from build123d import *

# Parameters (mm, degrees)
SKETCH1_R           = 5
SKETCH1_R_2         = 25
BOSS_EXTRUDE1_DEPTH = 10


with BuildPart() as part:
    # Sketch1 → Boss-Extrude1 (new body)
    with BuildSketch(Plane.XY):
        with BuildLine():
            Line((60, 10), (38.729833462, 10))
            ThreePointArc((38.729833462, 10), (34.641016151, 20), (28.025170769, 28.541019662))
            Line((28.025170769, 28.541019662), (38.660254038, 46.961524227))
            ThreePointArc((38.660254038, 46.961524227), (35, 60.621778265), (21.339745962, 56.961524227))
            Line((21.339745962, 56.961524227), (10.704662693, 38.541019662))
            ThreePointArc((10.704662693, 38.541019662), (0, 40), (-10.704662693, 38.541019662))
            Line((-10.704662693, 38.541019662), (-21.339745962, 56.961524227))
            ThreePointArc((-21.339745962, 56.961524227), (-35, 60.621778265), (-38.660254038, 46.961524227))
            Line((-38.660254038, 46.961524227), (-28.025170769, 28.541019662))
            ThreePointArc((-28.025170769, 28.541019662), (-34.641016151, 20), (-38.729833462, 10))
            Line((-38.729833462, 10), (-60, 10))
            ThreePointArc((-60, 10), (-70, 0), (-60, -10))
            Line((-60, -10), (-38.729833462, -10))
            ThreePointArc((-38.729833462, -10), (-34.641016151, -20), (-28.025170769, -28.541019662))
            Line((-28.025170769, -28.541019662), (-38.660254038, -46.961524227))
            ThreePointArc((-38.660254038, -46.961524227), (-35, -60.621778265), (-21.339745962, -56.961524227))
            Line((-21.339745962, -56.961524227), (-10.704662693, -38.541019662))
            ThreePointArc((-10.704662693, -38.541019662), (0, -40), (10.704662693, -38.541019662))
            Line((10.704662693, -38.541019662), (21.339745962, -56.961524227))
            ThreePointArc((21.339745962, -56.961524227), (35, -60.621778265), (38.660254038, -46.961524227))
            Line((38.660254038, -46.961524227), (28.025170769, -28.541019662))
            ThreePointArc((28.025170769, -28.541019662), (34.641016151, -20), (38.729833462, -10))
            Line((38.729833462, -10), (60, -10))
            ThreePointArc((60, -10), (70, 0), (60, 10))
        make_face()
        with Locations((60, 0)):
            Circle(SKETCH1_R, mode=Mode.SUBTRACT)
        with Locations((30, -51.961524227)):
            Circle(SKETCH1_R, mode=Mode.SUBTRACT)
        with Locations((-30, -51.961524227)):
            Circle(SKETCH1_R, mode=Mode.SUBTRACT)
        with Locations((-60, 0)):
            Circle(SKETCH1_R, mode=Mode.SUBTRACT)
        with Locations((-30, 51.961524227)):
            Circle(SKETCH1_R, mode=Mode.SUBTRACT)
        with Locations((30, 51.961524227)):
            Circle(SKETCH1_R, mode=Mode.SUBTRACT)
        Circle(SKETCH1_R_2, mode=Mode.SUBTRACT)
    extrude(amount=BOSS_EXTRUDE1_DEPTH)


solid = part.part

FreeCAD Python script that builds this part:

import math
import FreeCAD as App
import Part
import Sketcher
Q = App.Units.Quantity

doc = App.newDocument("Part")
body = doc.addObject("PartDesign::Body", "Body")

sketch1 = body.newObject("Sketcher::SketchObject", "Sketch")
sketch1.AttachmentSupport = (doc.getObject("XY_Plane"), [""])
sketch1.MapMode = "FlatFace"
sketch1.addGeometry(Part.LineSegment(App.Vector(60, 10, 0), App.Vector(39, 10, 0)), False)
sketch1.addGeometry(Part.ArcOfCircle(Part.Circle(App.Vector(0, 0, 0), App.Vector(0, 0, 1), 40), math.radians(14), math.radians(46)), False)
sketch1.addGeometry(Part.LineSegment(App.Vector(28, 29, 0), App.Vector(39, 47, 0)), False)
sketch1.addGeometry(Part.ArcOfCircle(Part.Circle(App.Vector(30, 52, 0), App.Vector(0, 0, 1), 10), math.radians(-30), math.radians(150)), False)
sketch1.addGeometry(Part.LineSegment(App.Vector(21, 57, 0), App.Vector(11, 39, 0)), False)
sketch1.addGeometry(Part.ArcOfCircle(Part.Circle(App.Vector(0, 0, 0), App.Vector(0, 0, 1), 40), math.radians(74), math.radians(106)), False)
sketch1.addGeometry(Part.LineSegment(App.Vector(-11, 39, 0), App.Vector(-21, 57, 0)), False)
sketch1.addGeometry(Part.ArcOfCircle(Part.Circle(App.Vector(-30, 52, 0), App.Vector(0, 0, 1), 10), math.radians(30), math.radians(210)), False)
sketch1.addGeometry(Part.LineSegment(App.Vector(-39, 47, 0), App.Vector(-28, 29, 0)), False)
sketch1.addGeometry(Part.ArcOfCircle(Part.Circle(App.Vector(0, 0, 0), App.Vector(0, 0, 1), 40), math.radians(134), math.radians(166)), False)
sketch1.addGeometry(Part.LineSegment(App.Vector(-39, 10, 0), App.Vector(-60, 10, 0)), False)
sketch1.addGeometry(Part.ArcOfCircle(Part.Circle(App.Vector(-60, 0, 0), App.Vector(0, 0, 1), 10), math.radians(90), math.radians(270)), False)
sketch1.addGeometry(Part.LineSegment(App.Vector(-60, -10, 0), App.Vector(-39, -10, 0)), False)
sketch1.addGeometry(Part.ArcOfCircle(Part.Circle(App.Vector(0, 0, 0), App.Vector(0, 0, 1), 40), math.radians(-166), math.radians(-134)), False)
sketch1.addGeometry(Part.LineSegment(App.Vector(-28, -29, 0), App.Vector(-39, -47, 0)), False)
sketch1.addGeometry(Part.ArcOfCircle(Part.Circle(App.Vector(-30, -52, 0), App.Vector(0, 0, 1), 10), math.radians(150), math.radians(330)), False)
sketch1.addGeometry(Part.LineSegment(App.Vector(-21, -57, 0), App.Vector(-11, -39, 0)), False)
sketch1.addGeometry(Part.ArcOfCircle(Part.Circle(App.Vector(0, 0, 0), App.Vector(0, 0, 1), 40), math.radians(-106), math.radians(-74)), False)
sketch1.addGeometry(Part.LineSegment(App.Vector(11, -39, 0), App.Vector(21, -57, 0)), False)
sketch1.addGeometry(Part.ArcOfCircle(Part.Circle(App.Vector(30, -52, 0), App.Vector(0, 0, 1), 10), math.radians(-150), math.radians(30)), False)
sketch1.addGeometry(Part.LineSegment(App.Vector(39, -47, 0), App.Vector(28, -29, 0)), False)
sketch1.addGeometry(Part.ArcOfCircle(Part.Circle(App.Vector(0, 0, 0), App.Vector(0, 0, 1), 40), math.radians(-46), math.radians(-14)), False)
sketch1.addGeometry(Part.LineSegment(App.Vector(39, -10, 0), App.Vector(60, -10, 0)), False)
sketch1.addGeometry(Part.ArcOfCircle(Part.Circle(App.Vector(60, 0, 0), App.Vector(0, 0, 1), 10), math.radians(-90), math.radians(90)), False)
sketch1.addGeometry(Part.Circle(App.Vector(-30, -52, 0), App.Vector(0, 0, 1), 5), False)
sketch1.addGeometry(Part.Circle(App.Vector(30, -52, 0), App.Vector(0, 0, 1), 5), False)
sketch1.addGeometry(Part.Circle(App.Vector(-60, 0, 0), App.Vector(0, 0, 1), 5), False)
sketch1.addGeometry(Part.Circle(App.Vector(-30, 52, 0), App.Vector(0, 0, 1), 5), False)
sketch1.addGeometry(Part.Circle(App.Vector(0, 0, 0), App.Vector(0, 0, 1), 25), False)
sketch1.addGeometry(Part.Circle(App.Vector(60, 0, 0), App.Vector(0, 0, 1), 5), False)
sketch1.addGeometry(Part.Circle(App.Vector(30, 52, 0), App.Vector(0, 0, 1), 5), False)
sketch1.addConstraint(Sketcher.Constraint("Coincident", 0, 2, 1, 1))
sketch1.addConstraint(Sketcher.Constraint("Coincident", 1, 2, 2, 1))
sketch1.addConstraint(Sketcher.Constraint("Tangent", 2, 2, 3, 1))
sketch1.addConstraint(Sketcher.Constraint("Tangent", 3, 2, 4, 1))
sketch1.addConstraint(Sketcher.Constraint("Coincident", 4, 2, 5, 1))
sketch1.addConstraint(Sketcher.Constraint("Coincident", 5, 2, 6, 1))
sketch1.addConstraint(Sketcher.Constraint("Tangent", 6, 2, 7, 1))
sketch1.addConstraint(Sketcher.Constraint("Tangent", 7, 2, 8, 1))
sketch1.addConstraint(Sketcher.Constraint("Coincident", 8, 2, 9, 1))
sketch1.addConstraint(Sketcher.Constraint("Coincident", 9, 2, 10, 1))
sketch1.addConstraint(Sketcher.Constraint("Tangent", 10, 2, 11, 1))
sketch1.addConstraint(Sketcher.Constraint("Tangent", 11, 2, 12, 1))
sketch1.addConstraint(Sketcher.Constraint("Coincident", 12, 2, 13, 1))
sketch1.addConstraint(Sketcher.Constraint("Coincident", 13, 2, 14, 1))
sketch1.addConstraint(Sketcher.Constraint("Tangent", 14, 2, 15, 1))
sketch1.addConstraint(Sketcher.Constraint("Tangent", 15, 2, 16, 1))
sketch1.addConstraint(Sketcher.Constraint("Coincident", 16, 2, 17, 1))
sketch1.addConstraint(Sketcher.Constraint("Coincident", 17, 2, 18, 1))
sketch1.addConstraint(Sketcher.Constraint("Tangent", 18, 2, 19, 1))
sketch1.addConstraint(Sketcher.Constraint("Tangent", 19, 2, 20, 1))
sketch1.addConstraint(Sketcher.Constraint("Coincident", 20, 2, 21, 1))
sketch1.addConstraint(Sketcher.Constraint("Coincident", 21, 2, 22, 1))
sketch1.addConstraint(Sketcher.Constraint("Tangent", 22, 2, 23, 1))
sketch1.addConstraint(Sketcher.Constraint("Tangent", 23, 2, 0, 1))
sketch1.addConstraint(Sketcher.Constraint("Horizontal", 0))
sketch1.addConstraint(Sketcher.Constraint("Horizontal", 10))
sketch1.addConstraint(Sketcher.Constraint("Horizontal", 12))
sketch1.addConstraint(Sketcher.Constraint("Horizontal", 22))
sketch1.addConstraint(Sketcher.Constraint("Coincident", 1, 3, -1, 1))
sketch1.addConstraint(Sketcher.Constraint("Coincident", 5, 3, -1, 1))
sketch1.addConstraint(Sketcher.Constraint("Coincident", 9, 3, -1, 1))
sketch1.addConstraint(Sketcher.Constraint("Coincident", 13, 3, -1, 1))
sketch1.addConstraint(Sketcher.Constraint("Coincident", 17, 3, -1, 1))
sketch1.addConstraint(Sketcher.Constraint("Coincident", 21, 3, -1, 1))
sketch1.addConstraint(Sketcher.Constraint("Coincident", 28, 3, -1, 1))
sketch1.addConstraint(Sketcher.Constraint("Coincident", 24, 3, 15, 3))
sketch1.addConstraint(Sketcher.Constraint("Coincident", 25, 3, 19, 3))
sketch1.addConstraint(Sketcher.Constraint("Coincident", 26, 3, 11, 3))
sketch1.addConstraint(Sketcher.Constraint("Coincident", 27, 3, 7, 3))
sketch1.addConstraint(Sketcher.Constraint("Coincident", 29, 3, 23, 3))
sketch1.addConstraint(Sketcher.Constraint("Coincident", 30, 3, 3, 3))
sketch1.addConstraint(Sketcher.Constraint("Equal", 1, 5))
sketch1.addConstraint(Sketcher.Constraint("Equal", 3, 7))
sketch1.addConstraint(Sketcher.Constraint("Equal", 5, 9))
sketch1.addConstraint(Sketcher.Constraint("Equal", 7, 11))
sketch1.addConstraint(Sketcher.Constraint("Equal", 9, 13))
sketch1.addConstraint(Sketcher.Constraint("Equal", 11, 15))
sketch1.addConstraint(Sketcher.Constraint("Equal", 13, 17))
sketch1.addConstraint(Sketcher.Constraint("Equal", 15, 19))
sketch1.addConstraint(Sketcher.Constraint("Equal", 17, 21))
sketch1.addConstraint(Sketcher.Constraint("Equal", 19, 23))
sketch1.addConstraint(Sketcher.Constraint("Equal", 24, 25))
sketch1.addConstraint(Sketcher.Constraint("Equal", 25, 26))
sketch1.addConstraint(Sketcher.Constraint("Equal", 26, 27))
sketch1.addConstraint(Sketcher.Constraint("Equal", 27, 29))
sketch1.addConstraint(Sketcher.Constraint("Equal", 29, 30))
sketch1.addConstraint(Sketcher.Constraint("Symmetric", 3, 3, 15, 3, -1, 1))
sketch1.addConstraint(Sketcher.Constraint("Symmetric", 7, 3, 19, 3, -1, 1))
sketch1.addConstraint(Sketcher.Constraint("Symmetric", 11, 3, 23, 3, -1, 1))
sketch1.addConstraint(Sketcher.Constraint("Symmetric", 3, 3, 7, 3, -2))
sketch1.addConstraint(Sketcher.Constraint("PointOnObject", 11, 3, -1))
sketch1.addConstraint(Sketcher.Constraint("Parallel", 2, 4))
sketch1.addConstraint(Sketcher.Constraint("Parallel", 6, 8))
sketch1.addConstraint(Sketcher.Constraint("Parallel", 4, 14))
sketch1.addConstraint(Sketcher.Constraint("Parallel", 14, 16))
sketch1.addConstraint(Sketcher.Constraint("Parallel", 8, 18))
sketch1.addConstraint(Sketcher.Constraint("Parallel", 18, 20))
sketch1.addConstraint(Sketcher.Constraint("Horizontal", 4, 2, 5, 2))
sketch1.addConstraint(Sketcher.Constraint("Equal", 2, 4))
sketch1.addConstraint(Sketcher.Constraint("Diameter", 24, Q("10 mm")))
sketch1.addConstraint(Sketcher.Constraint("Diameter", 28, Q("50 mm")))
sketch1.addConstraint(Sketcher.Constraint("Radius", 1, Q("40 mm")))
sketch1.addConstraint(Sketcher.Constraint("Radius", 3, Q("10 mm")))
sketch1.addConstraint(Sketcher.Constraint("Angle", 2, Q("60 deg")))
sketch1.addConstraint(Sketcher.Constraint("DistanceX", -1, 1, 3, 3, Q("30 mm")))
sketch1.addConstraint(Sketcher.Constraint("DistanceX", 11, 3, -1, 1, Q("60 mm")))
pad1 = body.newObject("PartDesign::Pad", "Pad")
pad1.Profile = sketch1
pad1.Length = 10

doc.recompute()
